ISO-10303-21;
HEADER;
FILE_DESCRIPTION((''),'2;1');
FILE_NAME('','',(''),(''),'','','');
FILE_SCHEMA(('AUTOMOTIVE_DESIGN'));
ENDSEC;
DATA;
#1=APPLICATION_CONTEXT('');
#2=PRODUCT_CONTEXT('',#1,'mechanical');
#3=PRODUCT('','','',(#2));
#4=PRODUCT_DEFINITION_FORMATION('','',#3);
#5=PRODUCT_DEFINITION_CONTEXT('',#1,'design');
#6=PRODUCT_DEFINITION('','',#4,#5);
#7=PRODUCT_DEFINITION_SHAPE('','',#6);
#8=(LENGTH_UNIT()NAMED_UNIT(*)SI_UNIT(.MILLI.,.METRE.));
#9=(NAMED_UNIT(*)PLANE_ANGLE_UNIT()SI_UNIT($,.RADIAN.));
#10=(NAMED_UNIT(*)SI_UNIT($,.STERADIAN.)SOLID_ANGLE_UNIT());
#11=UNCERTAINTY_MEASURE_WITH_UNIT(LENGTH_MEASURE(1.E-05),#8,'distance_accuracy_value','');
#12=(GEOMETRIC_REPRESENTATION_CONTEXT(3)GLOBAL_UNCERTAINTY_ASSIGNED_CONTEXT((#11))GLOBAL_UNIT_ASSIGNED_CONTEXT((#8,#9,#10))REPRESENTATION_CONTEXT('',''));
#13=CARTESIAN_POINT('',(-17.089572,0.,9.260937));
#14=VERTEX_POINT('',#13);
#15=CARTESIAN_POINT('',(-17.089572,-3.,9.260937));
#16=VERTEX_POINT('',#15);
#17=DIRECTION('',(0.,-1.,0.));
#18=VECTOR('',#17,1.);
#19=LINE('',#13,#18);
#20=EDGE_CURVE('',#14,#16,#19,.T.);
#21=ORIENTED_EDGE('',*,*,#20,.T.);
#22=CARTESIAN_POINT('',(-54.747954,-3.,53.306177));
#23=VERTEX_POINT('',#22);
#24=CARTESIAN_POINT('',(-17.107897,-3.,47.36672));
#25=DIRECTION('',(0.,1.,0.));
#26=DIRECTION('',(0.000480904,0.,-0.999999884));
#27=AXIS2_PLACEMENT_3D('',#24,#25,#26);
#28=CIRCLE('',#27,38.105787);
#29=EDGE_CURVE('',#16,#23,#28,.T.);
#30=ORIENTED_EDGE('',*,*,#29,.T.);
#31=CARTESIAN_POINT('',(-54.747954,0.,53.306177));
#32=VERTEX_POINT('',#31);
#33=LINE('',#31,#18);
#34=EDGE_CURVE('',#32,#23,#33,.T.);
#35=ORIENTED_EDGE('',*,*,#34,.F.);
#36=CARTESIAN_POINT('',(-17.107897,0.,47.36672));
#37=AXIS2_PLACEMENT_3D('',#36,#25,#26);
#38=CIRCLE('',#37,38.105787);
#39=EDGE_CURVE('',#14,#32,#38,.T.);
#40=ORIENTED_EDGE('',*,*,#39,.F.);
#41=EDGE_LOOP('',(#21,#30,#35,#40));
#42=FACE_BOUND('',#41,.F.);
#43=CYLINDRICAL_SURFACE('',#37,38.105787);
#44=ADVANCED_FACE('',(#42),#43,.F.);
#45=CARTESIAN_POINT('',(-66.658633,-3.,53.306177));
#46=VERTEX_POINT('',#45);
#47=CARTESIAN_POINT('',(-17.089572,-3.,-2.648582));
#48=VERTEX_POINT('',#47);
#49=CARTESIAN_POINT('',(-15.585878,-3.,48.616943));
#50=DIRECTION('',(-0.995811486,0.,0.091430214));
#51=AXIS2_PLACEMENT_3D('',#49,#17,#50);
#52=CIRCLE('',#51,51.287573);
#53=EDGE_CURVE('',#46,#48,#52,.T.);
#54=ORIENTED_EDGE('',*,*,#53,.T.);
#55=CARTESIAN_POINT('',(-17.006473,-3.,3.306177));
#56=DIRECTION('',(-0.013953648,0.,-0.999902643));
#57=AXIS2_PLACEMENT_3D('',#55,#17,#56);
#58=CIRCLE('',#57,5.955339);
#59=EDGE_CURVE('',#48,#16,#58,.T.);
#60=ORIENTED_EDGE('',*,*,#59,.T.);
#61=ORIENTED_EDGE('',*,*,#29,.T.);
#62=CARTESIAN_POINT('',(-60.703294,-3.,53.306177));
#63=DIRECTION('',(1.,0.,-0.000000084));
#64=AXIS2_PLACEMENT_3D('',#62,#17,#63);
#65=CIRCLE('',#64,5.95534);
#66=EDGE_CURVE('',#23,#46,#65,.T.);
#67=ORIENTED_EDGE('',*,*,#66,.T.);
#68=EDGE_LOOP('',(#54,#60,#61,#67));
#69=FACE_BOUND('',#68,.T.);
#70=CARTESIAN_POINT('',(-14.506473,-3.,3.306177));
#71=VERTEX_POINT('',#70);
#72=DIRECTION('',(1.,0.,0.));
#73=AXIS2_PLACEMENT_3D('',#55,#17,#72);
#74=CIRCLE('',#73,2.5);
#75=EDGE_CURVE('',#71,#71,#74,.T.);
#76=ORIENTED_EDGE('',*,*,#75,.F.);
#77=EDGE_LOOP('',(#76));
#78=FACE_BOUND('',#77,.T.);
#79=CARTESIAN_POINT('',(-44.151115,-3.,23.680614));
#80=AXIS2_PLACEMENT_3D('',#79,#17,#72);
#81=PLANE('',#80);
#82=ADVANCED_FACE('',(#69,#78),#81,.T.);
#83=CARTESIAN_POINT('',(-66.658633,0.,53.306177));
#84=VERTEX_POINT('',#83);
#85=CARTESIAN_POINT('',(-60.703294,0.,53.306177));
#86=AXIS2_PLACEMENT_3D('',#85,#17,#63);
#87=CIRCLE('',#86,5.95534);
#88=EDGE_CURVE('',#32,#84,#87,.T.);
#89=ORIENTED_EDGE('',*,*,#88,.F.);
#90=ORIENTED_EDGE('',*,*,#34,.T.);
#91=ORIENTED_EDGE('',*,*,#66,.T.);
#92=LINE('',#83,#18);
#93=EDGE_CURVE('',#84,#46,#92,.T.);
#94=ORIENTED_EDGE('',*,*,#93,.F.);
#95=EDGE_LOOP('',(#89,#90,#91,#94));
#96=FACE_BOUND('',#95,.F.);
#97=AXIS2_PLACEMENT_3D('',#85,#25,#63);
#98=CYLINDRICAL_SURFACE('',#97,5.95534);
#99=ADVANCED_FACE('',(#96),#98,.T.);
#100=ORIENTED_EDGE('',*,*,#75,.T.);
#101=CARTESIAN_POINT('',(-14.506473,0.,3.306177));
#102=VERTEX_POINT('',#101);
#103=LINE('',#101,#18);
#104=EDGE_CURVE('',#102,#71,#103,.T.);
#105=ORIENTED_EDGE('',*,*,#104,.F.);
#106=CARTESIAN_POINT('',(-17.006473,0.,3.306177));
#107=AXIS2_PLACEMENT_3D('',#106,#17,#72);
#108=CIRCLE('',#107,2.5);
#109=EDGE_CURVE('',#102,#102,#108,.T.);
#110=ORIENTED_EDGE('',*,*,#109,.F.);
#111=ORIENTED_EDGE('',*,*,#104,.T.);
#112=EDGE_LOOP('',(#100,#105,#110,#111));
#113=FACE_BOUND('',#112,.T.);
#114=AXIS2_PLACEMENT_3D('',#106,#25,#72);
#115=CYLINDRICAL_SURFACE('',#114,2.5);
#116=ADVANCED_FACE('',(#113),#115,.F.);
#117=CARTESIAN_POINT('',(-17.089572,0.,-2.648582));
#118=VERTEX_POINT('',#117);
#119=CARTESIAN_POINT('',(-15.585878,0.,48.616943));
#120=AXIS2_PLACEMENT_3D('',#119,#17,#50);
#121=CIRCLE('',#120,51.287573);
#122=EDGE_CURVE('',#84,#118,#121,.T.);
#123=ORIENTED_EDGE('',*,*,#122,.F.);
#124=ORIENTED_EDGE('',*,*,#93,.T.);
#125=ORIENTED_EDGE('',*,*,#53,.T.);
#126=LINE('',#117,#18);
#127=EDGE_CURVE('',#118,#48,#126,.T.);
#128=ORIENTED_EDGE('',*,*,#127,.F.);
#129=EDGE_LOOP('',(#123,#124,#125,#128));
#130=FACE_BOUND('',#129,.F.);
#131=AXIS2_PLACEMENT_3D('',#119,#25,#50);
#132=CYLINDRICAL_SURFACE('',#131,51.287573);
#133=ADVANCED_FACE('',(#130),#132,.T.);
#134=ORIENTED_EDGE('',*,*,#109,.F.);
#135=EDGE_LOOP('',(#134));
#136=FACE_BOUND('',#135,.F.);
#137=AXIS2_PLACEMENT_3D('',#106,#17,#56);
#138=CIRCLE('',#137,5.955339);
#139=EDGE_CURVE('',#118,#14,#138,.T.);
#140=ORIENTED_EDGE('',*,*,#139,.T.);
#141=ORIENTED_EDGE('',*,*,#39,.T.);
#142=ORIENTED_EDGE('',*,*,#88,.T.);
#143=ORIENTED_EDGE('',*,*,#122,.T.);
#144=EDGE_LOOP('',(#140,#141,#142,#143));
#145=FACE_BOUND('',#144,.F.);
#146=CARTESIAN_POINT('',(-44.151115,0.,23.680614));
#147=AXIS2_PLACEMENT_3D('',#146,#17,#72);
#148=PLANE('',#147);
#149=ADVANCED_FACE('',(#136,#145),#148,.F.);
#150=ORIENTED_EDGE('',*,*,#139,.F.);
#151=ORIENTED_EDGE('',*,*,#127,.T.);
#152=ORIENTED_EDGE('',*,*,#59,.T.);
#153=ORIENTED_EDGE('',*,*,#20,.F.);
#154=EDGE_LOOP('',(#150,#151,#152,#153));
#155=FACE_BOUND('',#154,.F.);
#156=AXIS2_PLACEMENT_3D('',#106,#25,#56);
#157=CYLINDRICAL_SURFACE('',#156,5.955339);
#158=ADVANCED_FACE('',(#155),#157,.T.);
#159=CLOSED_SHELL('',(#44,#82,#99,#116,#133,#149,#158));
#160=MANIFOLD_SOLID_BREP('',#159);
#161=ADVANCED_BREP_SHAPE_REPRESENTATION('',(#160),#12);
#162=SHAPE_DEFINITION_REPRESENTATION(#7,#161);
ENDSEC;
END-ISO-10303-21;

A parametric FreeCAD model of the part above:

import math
import FreeCAD as App
import Part
import Sketcher
from FreeCAD import Vector
Q = App.Units.Quantity

doc = App.newDocument("Part")
body = doc.addObject("PartDesign::Body", "Body")

sketch1 = doc.addObject("Sketcher::SketchObject", "Sketch")
body.addObject(sketch1)
sketch1.AttachmentSupport = (doc.XZ_Plane, [""])
sketch1.MapMode = "FlatFace"
sketch1.addGeometry(Part.ArcOfCircle(Part.Circle(Vector(-60.703294, 53.306177, 0), Vector(0, 0, 1), 5.95534), math.radians(-0.000005), math.radians(180.000005)), False)
sketch1.addGeometry(Part.ArcOfCircle(Part.Circle(Vector(-15.585878, 48.616943, 0), Vector(0, 0, 1), 51.287573), math.radians(174.754108), math.radians(268.319912)), False)
sketch1.addGeometry(Part.ArcOfCircle(Part.Circle(Vector(-17.006473, 3.306177, 0), Vector(0, 0, 1), 5.955339), math.radians(-90.799511), math.radians(90.799511)), False)
sketch1.addGeometry(Part.ArcOfCircle(Part.Circle(Vector(-17.107897, 47.36672, 0), Vector(0, 0, 1), 38.105787), math.radians(171.032883), math.radians(270.027554)), False)
sketch1.addGeometry(Part.Circle(Vector(-17.006473, 3.306177, 0), Vector(0, 0, 1), 2.5), False)
sketch1.addConstraint(Sketcher.Constraint("Coincident", 0, 2, 1, 1))
sketch1.addConstraint(Sketcher.Constraint("Coincident", 1, 2, 2, 1))
sketch1.addConstraint(Sketcher.Constraint("Coincident", 2, 2, 3, 2))
sketch1.addConstraint(Sketcher.Constraint("Coincident", 3, 1, 0, 1))
sketch1.addConstraint(Sketcher.Constraint("Coincident", 4, 3, 2, 3))
sketch1.addConstraint(Sketcher.Constraint("Equal", 0, 2))
sketch1.addConstraint(Sketcher.Constraint("Horizontal", 0, 2, 3, 1))
sketch1.addConstraint(Sketcher.Constraint("Vertical", 1, 2, 2, 2))
sketch1.addConstraint(Sketcher.Constraint("Diameter", 4, Q("5 mm")))
sketch1.addConstraint(Sketcher.Constraint("DistanceY", 2, 3, 0, 3, Q("50 mm")))
sketch1.addConstraint(Sketcher.Constraint("DistanceY", 2, 3, 0, 2, Q("50 mm")))
sketch1.addConstraint(Sketcher.Constraint("Radius", 0, Q("5.95534 mm")))
sketch1.addConstraint(Sketcher.Constraint("Radius", 1, Q("51.287573 mm")))
sketch1.addConstraint(Sketcher.Constraint("Radius", 3, Q("38.105787 mm")))
sketch1.addConstraint(Sketcher.Constraint("DistanceX", 1, 2, 4, 3, Q("0.083099 mm")))
sketch1.addConstraint(Sketcher.Constraint("DistanceX", 1, 3, -1, 1, Q("15.585878 mm")))
sketch1.addConstraint(Sketcher.Constraint("DistanceY", -1, 1, 3, 3, Q("47.36672 mm")))
sketch1.addConstraint(Sketcher.Constraint("DistanceX", 1, 2, -1, 1, Q("17.089572 mm")))
pad1 = doc.addObject("PartDesign::Pad", "Pad")
body.addObject(pad1)
pad1.Profile = sketch1
pad1.Length = 3

doc.recompute()
